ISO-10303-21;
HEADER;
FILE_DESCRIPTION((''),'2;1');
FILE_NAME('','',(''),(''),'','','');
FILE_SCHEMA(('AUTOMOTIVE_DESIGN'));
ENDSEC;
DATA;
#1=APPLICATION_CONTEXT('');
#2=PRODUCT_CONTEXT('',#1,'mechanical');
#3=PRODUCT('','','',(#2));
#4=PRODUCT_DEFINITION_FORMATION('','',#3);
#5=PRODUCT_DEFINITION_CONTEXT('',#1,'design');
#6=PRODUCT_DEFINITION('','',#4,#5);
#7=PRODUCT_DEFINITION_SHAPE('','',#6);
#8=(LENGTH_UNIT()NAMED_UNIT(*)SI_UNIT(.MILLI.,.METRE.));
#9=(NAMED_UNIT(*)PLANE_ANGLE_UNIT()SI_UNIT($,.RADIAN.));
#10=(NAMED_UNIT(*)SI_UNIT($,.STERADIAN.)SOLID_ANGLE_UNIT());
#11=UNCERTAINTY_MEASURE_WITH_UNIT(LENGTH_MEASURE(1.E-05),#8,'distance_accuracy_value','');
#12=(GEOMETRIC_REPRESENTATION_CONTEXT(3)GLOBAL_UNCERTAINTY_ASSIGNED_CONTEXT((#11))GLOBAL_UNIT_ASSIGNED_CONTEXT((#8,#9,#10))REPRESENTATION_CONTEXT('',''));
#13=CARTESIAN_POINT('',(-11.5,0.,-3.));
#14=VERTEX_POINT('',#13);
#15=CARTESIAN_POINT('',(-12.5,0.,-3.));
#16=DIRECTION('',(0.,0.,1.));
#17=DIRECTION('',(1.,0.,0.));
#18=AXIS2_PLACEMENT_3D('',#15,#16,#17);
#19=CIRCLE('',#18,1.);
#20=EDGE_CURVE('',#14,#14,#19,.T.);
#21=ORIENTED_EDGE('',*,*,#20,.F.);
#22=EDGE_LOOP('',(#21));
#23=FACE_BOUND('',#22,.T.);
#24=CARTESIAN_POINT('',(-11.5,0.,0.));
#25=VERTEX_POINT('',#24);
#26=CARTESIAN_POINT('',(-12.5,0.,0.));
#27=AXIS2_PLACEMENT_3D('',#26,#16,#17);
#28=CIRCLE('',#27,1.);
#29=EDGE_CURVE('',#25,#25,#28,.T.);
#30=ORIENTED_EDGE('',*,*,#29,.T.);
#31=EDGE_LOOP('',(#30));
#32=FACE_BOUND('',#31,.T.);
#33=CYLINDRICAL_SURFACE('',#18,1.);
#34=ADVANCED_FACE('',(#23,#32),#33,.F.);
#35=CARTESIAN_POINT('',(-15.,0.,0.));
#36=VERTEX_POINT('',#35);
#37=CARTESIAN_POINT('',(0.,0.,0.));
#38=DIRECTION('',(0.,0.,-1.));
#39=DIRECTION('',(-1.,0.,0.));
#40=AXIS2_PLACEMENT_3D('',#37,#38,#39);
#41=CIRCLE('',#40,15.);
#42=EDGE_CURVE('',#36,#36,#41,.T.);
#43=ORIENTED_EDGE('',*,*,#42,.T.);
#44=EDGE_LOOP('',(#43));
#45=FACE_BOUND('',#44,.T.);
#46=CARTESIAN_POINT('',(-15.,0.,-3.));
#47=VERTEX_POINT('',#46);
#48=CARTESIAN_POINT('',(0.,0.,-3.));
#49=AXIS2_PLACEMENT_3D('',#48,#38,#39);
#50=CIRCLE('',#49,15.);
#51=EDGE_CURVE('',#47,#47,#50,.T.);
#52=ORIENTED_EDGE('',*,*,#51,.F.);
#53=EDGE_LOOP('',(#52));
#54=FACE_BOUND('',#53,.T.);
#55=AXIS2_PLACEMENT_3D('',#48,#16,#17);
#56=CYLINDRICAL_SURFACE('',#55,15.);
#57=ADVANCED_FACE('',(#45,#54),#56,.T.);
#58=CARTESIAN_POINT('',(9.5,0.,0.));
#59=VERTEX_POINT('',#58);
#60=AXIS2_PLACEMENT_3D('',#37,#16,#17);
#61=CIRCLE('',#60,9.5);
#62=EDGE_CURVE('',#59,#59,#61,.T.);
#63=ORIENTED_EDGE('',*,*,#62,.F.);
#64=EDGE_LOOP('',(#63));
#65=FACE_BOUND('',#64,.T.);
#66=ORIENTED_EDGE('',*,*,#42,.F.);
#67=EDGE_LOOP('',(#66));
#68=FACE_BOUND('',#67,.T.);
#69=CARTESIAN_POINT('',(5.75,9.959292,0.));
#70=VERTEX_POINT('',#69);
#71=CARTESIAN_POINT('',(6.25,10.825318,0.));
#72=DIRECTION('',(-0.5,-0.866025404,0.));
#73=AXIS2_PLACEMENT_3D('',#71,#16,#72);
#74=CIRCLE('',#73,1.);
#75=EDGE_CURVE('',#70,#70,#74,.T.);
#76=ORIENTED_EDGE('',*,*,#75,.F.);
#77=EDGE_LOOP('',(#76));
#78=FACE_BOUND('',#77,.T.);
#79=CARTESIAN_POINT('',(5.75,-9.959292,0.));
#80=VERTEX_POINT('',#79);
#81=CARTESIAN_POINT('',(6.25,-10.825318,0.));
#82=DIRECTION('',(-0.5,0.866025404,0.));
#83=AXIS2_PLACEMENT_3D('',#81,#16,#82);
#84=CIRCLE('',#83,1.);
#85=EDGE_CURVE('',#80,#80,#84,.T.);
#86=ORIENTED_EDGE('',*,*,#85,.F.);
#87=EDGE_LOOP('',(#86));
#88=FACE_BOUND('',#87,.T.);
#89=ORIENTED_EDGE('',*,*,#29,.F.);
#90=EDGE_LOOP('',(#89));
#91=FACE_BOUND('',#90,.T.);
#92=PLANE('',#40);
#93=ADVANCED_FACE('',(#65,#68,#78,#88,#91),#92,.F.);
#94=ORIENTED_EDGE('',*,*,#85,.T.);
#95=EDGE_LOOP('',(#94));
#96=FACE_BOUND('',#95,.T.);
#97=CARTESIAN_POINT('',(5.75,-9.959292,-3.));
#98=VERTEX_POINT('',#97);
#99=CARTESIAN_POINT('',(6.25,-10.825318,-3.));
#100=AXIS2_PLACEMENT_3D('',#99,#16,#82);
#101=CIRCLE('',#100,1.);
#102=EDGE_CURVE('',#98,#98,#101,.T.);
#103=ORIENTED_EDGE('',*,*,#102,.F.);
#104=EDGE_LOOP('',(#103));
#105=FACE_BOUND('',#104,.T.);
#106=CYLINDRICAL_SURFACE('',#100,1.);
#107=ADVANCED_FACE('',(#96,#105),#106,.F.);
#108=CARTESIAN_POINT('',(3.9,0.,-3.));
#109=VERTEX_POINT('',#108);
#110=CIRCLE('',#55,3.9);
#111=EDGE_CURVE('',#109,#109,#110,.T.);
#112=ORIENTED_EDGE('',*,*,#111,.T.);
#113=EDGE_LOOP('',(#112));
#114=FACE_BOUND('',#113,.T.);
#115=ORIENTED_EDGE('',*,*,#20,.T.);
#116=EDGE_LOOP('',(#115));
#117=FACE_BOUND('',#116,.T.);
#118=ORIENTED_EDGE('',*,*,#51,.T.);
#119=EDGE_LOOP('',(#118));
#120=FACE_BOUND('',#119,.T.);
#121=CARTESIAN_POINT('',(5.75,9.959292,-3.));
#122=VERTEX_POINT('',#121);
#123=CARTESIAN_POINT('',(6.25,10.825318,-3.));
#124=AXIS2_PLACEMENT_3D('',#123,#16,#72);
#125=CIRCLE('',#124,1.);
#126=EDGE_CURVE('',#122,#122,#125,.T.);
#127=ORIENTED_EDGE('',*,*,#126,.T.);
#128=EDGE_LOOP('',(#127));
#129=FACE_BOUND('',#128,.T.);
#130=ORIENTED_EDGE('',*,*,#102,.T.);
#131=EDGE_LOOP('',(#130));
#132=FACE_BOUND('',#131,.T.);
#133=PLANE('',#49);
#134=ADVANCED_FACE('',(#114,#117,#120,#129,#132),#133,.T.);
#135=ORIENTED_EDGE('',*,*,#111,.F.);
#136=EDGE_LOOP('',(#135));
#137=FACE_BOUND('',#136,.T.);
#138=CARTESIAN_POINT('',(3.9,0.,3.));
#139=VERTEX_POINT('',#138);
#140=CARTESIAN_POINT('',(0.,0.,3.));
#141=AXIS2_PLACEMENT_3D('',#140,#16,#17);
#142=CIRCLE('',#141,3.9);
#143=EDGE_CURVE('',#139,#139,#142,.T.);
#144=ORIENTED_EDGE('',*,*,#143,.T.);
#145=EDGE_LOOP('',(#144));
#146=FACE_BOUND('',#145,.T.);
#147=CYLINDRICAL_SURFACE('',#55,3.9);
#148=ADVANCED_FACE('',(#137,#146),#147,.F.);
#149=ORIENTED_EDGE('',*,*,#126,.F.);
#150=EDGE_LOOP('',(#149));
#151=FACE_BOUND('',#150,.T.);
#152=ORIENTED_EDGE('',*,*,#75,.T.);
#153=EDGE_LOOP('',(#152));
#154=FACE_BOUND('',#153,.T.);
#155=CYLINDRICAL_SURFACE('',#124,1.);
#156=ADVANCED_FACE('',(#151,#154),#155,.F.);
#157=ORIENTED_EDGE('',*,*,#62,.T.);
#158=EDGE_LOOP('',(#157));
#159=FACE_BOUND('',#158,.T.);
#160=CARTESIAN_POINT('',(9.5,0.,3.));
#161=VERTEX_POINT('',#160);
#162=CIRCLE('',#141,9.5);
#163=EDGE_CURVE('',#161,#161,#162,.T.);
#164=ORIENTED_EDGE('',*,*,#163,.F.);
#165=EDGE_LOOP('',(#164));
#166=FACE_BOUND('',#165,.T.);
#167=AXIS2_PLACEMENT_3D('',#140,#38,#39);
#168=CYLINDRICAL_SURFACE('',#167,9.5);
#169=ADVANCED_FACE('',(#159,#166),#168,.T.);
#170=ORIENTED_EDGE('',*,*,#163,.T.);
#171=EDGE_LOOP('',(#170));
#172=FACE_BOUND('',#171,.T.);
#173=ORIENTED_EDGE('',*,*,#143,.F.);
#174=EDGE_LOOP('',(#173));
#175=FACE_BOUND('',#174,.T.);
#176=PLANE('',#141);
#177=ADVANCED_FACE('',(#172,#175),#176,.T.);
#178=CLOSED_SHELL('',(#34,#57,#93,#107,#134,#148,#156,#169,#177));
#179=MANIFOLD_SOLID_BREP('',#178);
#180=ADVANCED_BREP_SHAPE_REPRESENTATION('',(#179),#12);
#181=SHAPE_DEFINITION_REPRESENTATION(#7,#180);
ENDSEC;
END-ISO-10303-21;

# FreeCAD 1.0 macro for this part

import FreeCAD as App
import Part
import Sketcher
from FreeCAD import Vector

doc = App.newDocument("Part")
params = doc.addObject("Spreadsheet::Sheet", "Params")
for row, (alias, value) in enumerate([
    ("sketch1_diameter", "19 mm"),
    ("pad1_length", "3 mm"),
    ("sketch2_diameter", "30 mm"),
    ("pad2_length", "3 mm"),
    ("sketch3_diameter", "7.8 mm"),
    ("sketch4_diameter", "2 mm"),
], start=1):
    params.set(f"A{row}", alias)
    params.set(f"B{row}", "=" + value)
    params.setAlias(f"B{row}", alias)

body = doc.addObject("PartDesign::Body", "Body")

sketch1 = doc.addObject("Sketcher::SketchObject", "Sketch")
body.addObject(sketch1)
sketch1.AttachmentSupport = (doc.XY_Plane, [""])
sketch1.MapMode = "FlatFace"
sketch1.addGeometry(Part.Circle(Vector(0, 0, 0), Vector(0, 0, 1), 10), False)
sketch1.addConstraint(Sketcher.Constraint("Coincident", 0, 3, -1, 1))
sketch1.addConstraint(Sketcher.Constraint("Diameter", 0, 19.0))
sketch1.setExpression("Constraints[1]", "Params.sketch1_diameter")
pad1 = doc.addObject("PartDesign::Pad", "Pad")
body.addObject(pad1)
pad1.Profile = sketch1
pad1.setExpression("Length", "Params.pad1_length")

sketch2 = doc.addObject("Sketcher::SketchObject", "Sketch001")
body.addObject(sketch2)
sketch2.AttachmentSupport = (doc.XY_Plane, [""])
sketch2.MapMode = "FlatFace"
sketch2.addGeometry(Part.Circle(Vector(0, 0, 0), Vector(0, 0, 1), 15), False)
sketch2.addConstraint(Sketcher.Constraint("Coincident", 0, 3, -1, 1))
sketch2.addConstraint(Sketcher.Constraint("Diameter", 0, 30.0))
sketch2.setExpression("Constraints[1]", "Params.sketch2_diameter")
pad2 = doc.addObject("PartDesign::Pad", "Pad001")
body.addObject(pad2)
pad2.Profile = sketch2
pad2.setExpression("Length", "Params.pad2_length")
pad2.Reversed = True

sketch3 = doc.addObject("Sketcher::SketchObject", "Sketch002")
body.addObject(sketch3)
sketch3.AttachmentSupport = (doc.XY_Plane, [""])
sketch3.MapMode = "FlatFace"
sketch3.AttachmentOffset = App.Placement(Vector(0, 0, 3), App.Rotation())
sketch3.addGeometry(Part.Circle(Vector(0, 0, 0), Vector(0, 0, 1), 3.9), False)
sketch3.addConstraint(Sketcher.Constraint("Coincident", 0, 3, -1, 1))
sketch3.addConstraint(Sketcher.Constraint("Diameter", 0, 7.8))
sketch3.setExpression("Constraints[1]", "Params.sketch3_diameter")
pocket1 = doc.addObject("PartDesign::Pocket", "Pocket")
body.addObject(pocket1)
pocket1.Profile = sketch3
pocket1.Type = "ThroughAll"

sketch4 = doc.addObject("Sketcher::SketchObject", "Sketch003")
body.addObject(sketch4)
sketch4.AttachmentSupport = (doc.XY_Plane, [""])
sketch4.MapMode = "FlatFace"
sketch4.addGeometry(Part.Circle(Vector(-12.5, 0, 0), Vector(0, 0, 1), 1), False)
sketch4.addConstraint(Sketcher.Constraint("PointOnObject", 0, 3, -1))
sketch4.addConstraint(Sketcher.Constraint("Diameter", 0, 2.0))
sketch4.addConstraint(Sketcher.Constraint("DistanceX", 0, 3, -1, 1, 12.5))
sketch4.setExpression("Constraints[1]", "Params.sketch4_diameter")
pocket2 = doc.addObject("PartDesign::Pocket", "Pocket001")
body.addObject(pocket2)
pocket2.Profile = sketch4
pocket2.Type = "ThroughAll"
doc.recompute()

polarpattern = doc.addObject("PartDesign::PolarPattern", "PolarPattern")
body.addObject(polarpattern)
polarpattern.Originals = [pocket2]
polarpattern.Axis = (doc.Z_Axis, [""])
polarpattern.Angle = 360
polarpattern.Occurrences = 3
body.Tip = polarpattern

doc.recompute()
